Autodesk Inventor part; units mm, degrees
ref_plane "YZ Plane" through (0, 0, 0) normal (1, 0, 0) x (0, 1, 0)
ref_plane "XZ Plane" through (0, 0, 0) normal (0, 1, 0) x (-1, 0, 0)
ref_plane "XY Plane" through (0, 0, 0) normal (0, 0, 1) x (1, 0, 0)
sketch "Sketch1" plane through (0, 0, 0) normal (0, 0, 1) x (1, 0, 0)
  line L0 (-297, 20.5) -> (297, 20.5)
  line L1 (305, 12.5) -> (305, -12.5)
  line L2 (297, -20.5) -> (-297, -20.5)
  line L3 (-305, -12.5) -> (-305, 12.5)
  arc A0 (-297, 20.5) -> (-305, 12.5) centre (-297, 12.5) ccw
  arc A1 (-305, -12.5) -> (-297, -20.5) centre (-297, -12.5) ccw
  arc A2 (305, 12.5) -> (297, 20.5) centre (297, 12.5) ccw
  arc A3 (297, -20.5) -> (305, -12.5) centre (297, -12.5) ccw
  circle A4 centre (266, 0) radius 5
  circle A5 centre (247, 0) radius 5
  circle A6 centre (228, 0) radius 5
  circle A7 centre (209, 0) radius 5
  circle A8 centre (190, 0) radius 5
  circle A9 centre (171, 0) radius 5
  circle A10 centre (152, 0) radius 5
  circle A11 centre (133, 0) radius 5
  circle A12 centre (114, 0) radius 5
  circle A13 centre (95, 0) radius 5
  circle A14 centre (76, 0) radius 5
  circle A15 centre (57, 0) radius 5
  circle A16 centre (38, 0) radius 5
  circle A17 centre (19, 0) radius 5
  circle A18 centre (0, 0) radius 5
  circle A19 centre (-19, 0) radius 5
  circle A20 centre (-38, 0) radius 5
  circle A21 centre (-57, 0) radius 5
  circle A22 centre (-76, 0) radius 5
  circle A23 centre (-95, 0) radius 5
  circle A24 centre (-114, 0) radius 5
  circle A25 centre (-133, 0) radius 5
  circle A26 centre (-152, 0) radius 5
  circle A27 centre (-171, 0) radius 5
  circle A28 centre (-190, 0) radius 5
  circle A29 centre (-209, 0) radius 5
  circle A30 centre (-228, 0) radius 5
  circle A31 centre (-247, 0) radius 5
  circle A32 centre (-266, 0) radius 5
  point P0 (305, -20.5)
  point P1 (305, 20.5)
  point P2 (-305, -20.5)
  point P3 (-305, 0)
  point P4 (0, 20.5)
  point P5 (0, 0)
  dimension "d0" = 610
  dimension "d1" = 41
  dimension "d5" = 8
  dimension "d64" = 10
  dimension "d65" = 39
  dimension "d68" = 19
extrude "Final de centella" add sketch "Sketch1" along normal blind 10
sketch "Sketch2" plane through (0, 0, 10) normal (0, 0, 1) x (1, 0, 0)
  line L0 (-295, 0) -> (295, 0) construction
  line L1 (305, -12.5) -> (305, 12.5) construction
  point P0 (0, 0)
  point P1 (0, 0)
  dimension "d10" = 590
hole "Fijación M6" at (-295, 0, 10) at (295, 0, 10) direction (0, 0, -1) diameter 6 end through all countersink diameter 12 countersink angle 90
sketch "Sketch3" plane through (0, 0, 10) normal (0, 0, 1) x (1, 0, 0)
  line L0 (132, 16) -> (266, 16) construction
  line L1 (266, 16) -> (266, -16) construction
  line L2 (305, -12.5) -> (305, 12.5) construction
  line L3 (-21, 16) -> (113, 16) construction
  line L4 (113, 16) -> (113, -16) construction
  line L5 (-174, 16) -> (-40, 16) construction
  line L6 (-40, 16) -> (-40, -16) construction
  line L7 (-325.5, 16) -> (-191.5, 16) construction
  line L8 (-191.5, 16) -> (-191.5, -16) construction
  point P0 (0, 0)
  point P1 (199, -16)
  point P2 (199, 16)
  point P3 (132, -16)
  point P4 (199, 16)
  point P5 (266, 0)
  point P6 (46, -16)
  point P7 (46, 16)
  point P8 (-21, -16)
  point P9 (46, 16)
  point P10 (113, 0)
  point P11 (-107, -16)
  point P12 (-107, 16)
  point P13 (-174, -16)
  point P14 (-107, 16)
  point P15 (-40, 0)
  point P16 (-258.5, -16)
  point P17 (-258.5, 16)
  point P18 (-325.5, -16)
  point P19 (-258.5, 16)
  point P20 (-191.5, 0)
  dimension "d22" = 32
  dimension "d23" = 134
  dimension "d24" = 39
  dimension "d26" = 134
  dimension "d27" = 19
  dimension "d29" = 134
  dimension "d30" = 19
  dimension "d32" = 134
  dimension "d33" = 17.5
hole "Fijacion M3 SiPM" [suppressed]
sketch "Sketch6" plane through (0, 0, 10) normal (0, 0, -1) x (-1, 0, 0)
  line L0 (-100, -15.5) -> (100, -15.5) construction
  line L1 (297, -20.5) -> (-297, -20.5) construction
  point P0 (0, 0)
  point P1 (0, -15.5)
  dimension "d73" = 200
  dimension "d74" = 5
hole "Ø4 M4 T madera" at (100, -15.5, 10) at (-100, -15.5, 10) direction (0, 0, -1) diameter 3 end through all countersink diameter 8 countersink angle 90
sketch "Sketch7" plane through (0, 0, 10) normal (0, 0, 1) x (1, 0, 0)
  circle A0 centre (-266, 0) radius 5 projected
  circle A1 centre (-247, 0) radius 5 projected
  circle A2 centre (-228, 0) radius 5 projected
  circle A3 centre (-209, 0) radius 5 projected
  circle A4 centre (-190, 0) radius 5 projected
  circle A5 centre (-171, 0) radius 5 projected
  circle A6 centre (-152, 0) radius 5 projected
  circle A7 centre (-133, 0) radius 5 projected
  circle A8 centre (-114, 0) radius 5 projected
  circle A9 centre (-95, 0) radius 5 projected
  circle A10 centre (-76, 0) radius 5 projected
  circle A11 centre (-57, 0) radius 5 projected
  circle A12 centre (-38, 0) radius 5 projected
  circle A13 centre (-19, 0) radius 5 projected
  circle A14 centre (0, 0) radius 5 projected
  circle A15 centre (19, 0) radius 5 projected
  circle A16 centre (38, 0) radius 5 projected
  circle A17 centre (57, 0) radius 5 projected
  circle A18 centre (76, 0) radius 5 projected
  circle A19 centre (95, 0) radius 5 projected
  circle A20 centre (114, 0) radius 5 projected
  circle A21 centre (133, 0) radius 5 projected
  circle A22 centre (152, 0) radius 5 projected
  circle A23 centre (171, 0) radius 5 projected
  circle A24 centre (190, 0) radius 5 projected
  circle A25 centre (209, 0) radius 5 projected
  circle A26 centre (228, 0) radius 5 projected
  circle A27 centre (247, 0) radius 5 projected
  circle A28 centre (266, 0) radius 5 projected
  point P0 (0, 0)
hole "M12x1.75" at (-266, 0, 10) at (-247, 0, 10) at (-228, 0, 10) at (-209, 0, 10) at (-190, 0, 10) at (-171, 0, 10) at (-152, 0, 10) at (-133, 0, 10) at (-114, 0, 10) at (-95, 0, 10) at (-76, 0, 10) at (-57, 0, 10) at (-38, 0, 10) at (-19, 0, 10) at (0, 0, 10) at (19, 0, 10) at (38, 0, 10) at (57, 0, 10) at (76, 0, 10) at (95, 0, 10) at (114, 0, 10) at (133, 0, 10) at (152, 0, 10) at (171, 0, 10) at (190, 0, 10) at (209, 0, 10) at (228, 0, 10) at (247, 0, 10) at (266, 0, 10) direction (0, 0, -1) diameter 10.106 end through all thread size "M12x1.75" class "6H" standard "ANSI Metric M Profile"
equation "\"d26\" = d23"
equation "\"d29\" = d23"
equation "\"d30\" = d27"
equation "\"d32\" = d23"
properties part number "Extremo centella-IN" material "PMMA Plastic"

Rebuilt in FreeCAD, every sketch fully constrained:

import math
import FreeCAD as App
import Part
import Sketcher
Q = App.Units.Quantity

doc = App.newDocument("Part")
body = doc.addObject("PartDesign::Body", "Body")

sketch1 = doc.addObject("Sketcher::SketchObject", "Sketch")
body.addObject(sketch1)
sketch1.AttachmentSupport = (doc.XY_Plane, [""])
sketch1.MapMode = "FlatFace"
sketch1.addGeometry(Part.LineSegment(App.Vector(297, 20, 0), App.Vector(-297, 20, 0)), False)
sketch1.addGeometry(Part.ArcOfCircle(Part.Circle(App.Vector(-297, 12, 0), App.Vector(0, 0, 1), 8), math.radians(90), math.radians(180)), False)
sketch1.addGeometry(Part.LineSegment(App.Vector(-305, 12, 0), App.Vector(-305, -12, 0)), False)
sketch1.addGeometry(Part.ArcOfCircle(Part.Circle(App.Vector(-297, -12, 0), App.Vector(0, 0, 1), 8), math.radians(180), math.radians(270)), False)
sketch1.addGeometry(Part.LineSegment(App.Vector(-297, -20, 0), App.Vector(297, -20, 0)), False)
sketch1.addGeometry(Part.ArcOfCircle(Part.Circle(App.Vector(297, -12, 0), App.Vector(0, 0, 1), 8), math.radians(-90), math.radians(0)), False)
sketch1.addGeometry(Part.LineSegment(App.Vector(305, -12, 0), App.Vector(305, 12, 0)), False)
sketch1.addGeometry(Part.ArcOfCircle(Part.Circle(App.Vector(297, 12, 0), App.Vector(0, 0, 1), 8), math.radians(0), math.radians(90)), False)
sketch1.addGeometry(Part.Circle(App.Vector(-266, 0, 0), App.Vector(0, 0, 1), 5), False)
sketch1.addGeometry(Part.Circle(App.Vector(-247, 0, 0), App.Vector(0, 0, 1), 5), False)
sketch1.addGeometry(Part.Circle(App.Vector(-228, 0, 0), App.Vector(0, 0, 1), 5), False)
sketch1.addGeometry(Part.Circle(App.Vector(-209, 0, 0), App.Vector(0, 0, 1), 5), False)
sketch1.addGeometry(Part.Circle(App.Vector(-190, 0, 0), App.Vector(0, 0, 1), 5), False)
sketch1.addGeometry(Part.Circle(App.Vector(-171, 0, 0), App.Vector(0, 0, 1), 5), False)
sketch1.addGeometry(Part.Circle(App.Vector(-152, 0, 0), App.Vector(0, 0, 1), 5), False)
sketch1.addGeometry(Part.Circle(App.Vector(-133, 0, 0), App.Vector(0, 0, 1), 5), False)
sketch1.addGeometry(Part.Circle(App.Vector(-114, 0, 0), App.Vector(0, 0, 1), 5), False)
sketch1.addGeometry(Part.Circle(App.Vector(-95, 0, 0), App.Vector(0, 0, 1), 5), False)
sketch1.addGeometry(Part.Circle(App.Vector(-76, 0, 0), App.Vector(0, 0, 1), 5), False)
sketch1.addGeometry(Part.Circle(App.Vector(-57, 0, 0), App.Vector(0, 0, 1), 5), False)
sketch1.addGeometry(Part.Circle(App.Vector(-38, 0, 0), App.Vector(0, 0, 1), 5), False)
sketch1.addGeometry(Part.Circle(App.Vector(-19, 0, 0), App.Vector(0, 0, 1), 5), False)
sketch1.addGeometry(Part.Circle(App.Vector(0, 0, 0), App.Vector(0, 0, 1), 5), False)
sketch1.addGeometry(Part.Circle(App.Vector(19, 0, 0), App.Vector(0, 0, 1), 5), False)
sketch1.addGeometry(Part.Circle(App.Vector(38, 0, 0), App.Vector(0, 0, 1), 5), False)
sketch1.addGeometry(Part.Circle(App.Vector(57, 0, 0), App.Vector(0, 0, 1), 5), False)
sketch1.addGeometry(Part.Circle(App.Vector(76, 0, 0), App.Vector(0, 0, 1), 5), False)
sketch1.addGeometry(Part.Circle(App.Vector(95, 0, 0), App.Vector(0, 0, 1), 5), False)
sketch1.addGeometry(Part.Circle(App.Vector(114, 0, 0), App.Vector(0, 0, 1), 5), False)
sketch1.addGeometry(Part.Circle(App.Vector(133, 0, 0), App.Vector(0, 0, 1), 5), False)
sketch1.addGeometry(Part.Circle(App.Vector(152, 0, 0), App.Vector(0, 0, 1), 5), False)
sketch1.addGeometry(Part.Circle(App.Vector(171, 0, 0), App.Vector(0, 0, 1), 5), False)
sketch1.addGeometry(Part.Circle(App.Vector(190, 0, 0), App.Vector(0, 0, 1), 5), False)
sketch1.addGeometry(Part.Circle(App.Vector(209, 0, 0), App.Vector(0, 0, 1), 5), False)
sketch1.addGeometry(Part.Circle(App.Vector(228, 0, 0), App.Vector(0, 0, 1), 5), False)
sketch1.addGeometry(Part.Circle(App.Vector(247, 0, 0), App.Vector(0, 0, 1), 5), False)
sketch1.addGeometry(Part.Circle(App.Vector(266, 0, 0), App.Vector(0, 0, 1), 5), False)
sketch1.addConstraint(Sketcher.Constraint("Tangent", 0, 2, 1, 1))
sketch1.addConstraint(Sketcher.Constraint("Tangent", 1, 2, 2, 1))
sketch1.addConstraint(Sketcher.Constraint("Tangent", 2, 2, 3, 1))
sketch1.addConstraint(Sketcher.Constraint("Tangent", 3, 2, 4, 1))
sketch1.addConstraint(Sketcher.Constraint("Tangent", 4, 2, 5, 1))
sketch1.addConstraint(Sketcher.Constraint("Tangent", 5, 2, 6, 1))
sketch1.addConstraint(Sketcher.Constraint("Tangent", 6, 2, 7, 1))
sketch1.addConstraint(Sketcher.Constraint("Tangent", 7, 2, 0, 1))
sketch1.addConstraint(Sketcher.Constraint("Horizontal", 0))
sketch1.addConstraint(Sketcher.Constraint("Vertical", 2))
sketch1.addConstraint(Sketcher.Constraint("Horizontal", 4))
sketch1.addConstraint(Sketcher.Constraint("Vertical", 6))
sketch1.addConstraint(Sketcher.Constraint("Coincident", 22, 3, -1, 1))
sketch1.addConstraint(Sketcher.Constraint("Equal", 1, 3))
sketch1.addConstraint(Sketcher.Constraint("Equal", 3, 5))
sketch1.addConstraint(Sketcher.Constraint("Equal", 5, 7))
sketch1.addConstraint(Sketcher.Constraint("Equal", 8, 9))
sketch1.addConstraint(Sketcher.Constraint("Equal", 9, 10))
sketch1.addConstraint(Sketcher.Constraint("Equal", 10, 11))
sketch1.addConstraint(Sketcher.Constraint("Equal", 11, 12))
sketch1.addConstraint(Sketcher.Constraint("Equal", 12, 13))
sketch1.addConstraint(Sketcher.Constraint("Equal", 13, 14))
sketch1.addConstraint(Sketcher.Constraint("Equal", 14, 15))
sketch1.addConstraint(Sketcher.Constraint("Equal", 15, 16))
sketch1.addConstraint(Sketcher.Constraint("Equal", 16, 17))
sketch1.addConstraint(Sketcher.Constraint("Equal", 17, 18))
sketch1.addConstraint(Sketcher.Constraint("Equal", 18, 19))
sketch1.addConstraint(Sketcher.Constraint("Equal", 19, 20))
sketch1.addConstraint(Sketcher.Constraint("Equal", 20, 21))
sketch1.addConstraint(Sketcher.Constraint("Equal", 21, 22))
sketch1.addConstraint(Sketcher.Constraint("Equal", 22, 23))
sketch1.addConstraint(Sketcher.Constraint("Equal", 23, 24))
sketch1.addConstraint(Sketcher.Constraint("Equal", 24, 25))
sketch1.addConstraint(Sketcher.Constraint("Equal", 25, 26))
sketch1.addConstraint(Sketcher.Constraint("Equal", 26, 27))
sketch1.addConstraint(Sketcher.Constraint("Equal", 27, 28))
sketch1.addConstraint(Sketcher.Constraint("Equal", 28, 29))
sketch1.addConstraint(Sketcher.Constraint("Equal", 29, 30))
sketch1.addConstraint(Sketcher.Constraint("Equal", 30, 31))
sketch1.addConstraint(Sketcher.Constraint("Equal", 31, 32))
sketch1.addConstraint(Sketcher.Constraint("Equal", 32, 33))
sketch1.addConstraint(Sketcher.Constraint("Equal", 33, 34))
sketch1.addConstraint(Sketcher.Constraint("Equal", 34, 35))
sketch1.addConstraint(Sketcher.Constraint("Equal", 35, 36))
sketch1.addConstraint(Sketcher.Constraint("Symmetric", 1, 3, 5, 3, -1, 1))
sketch1.addConstraint(Sketcher.Constraint("Symmetric", 21, 3, 23, 3, -1, 1))
sketch1.addConstraint(Sketcher.Constraint("Symmetric", 20, 3, 24, 3, -1, 1))
sketch1.addConstraint(Sketcher.Constraint("Symmetric", 19, 3, 25, 3, -1, 1))
sketch1.addConstraint(Sketcher.Constraint("Symmetric", 18, 3, 26, 3, -1, 1))
sketch1.addConstraint(Sketcher.Constraint("Symmetric", 17, 3, 27, 3, -1, 1))
sketch1.addConstraint(Sketcher.Constraint("Symmetric", 16, 3, 28, 3, -1, 1))
sketch1.addConstraint(Sketcher.Constraint("Symmetric", 15, 3, 29, 3, -1, 1))
sketch1.addConstraint(Sketcher.Constraint("Symmetric", 14, 3, 30, 3, -1, 1))
sketch1.addConstraint(Sketcher.Constraint("Symmetric", 13, 3, 31, 3, -1, 1))
sketch1.addConstraint(Sketcher.Constraint("Symmetric", 12, 3, 32, 3, -1, 1))
sketch1.addConstraint(Sketcher.Constraint("Symmetric", 11, 3, 33, 3, -1, 1))
sketch1.addConstraint(Sketcher.Constraint("Symmetric", 10, 3, 34, 3, -1, 1))
sketch1.addConstraint(Sketcher.Constraint("Symmetric", 9, 3, 35, 3, -1, 1))
sketch1.addConstraint(Sketcher.Constraint("Symmetric", 8, 3, 36, 3, -1, 1))
sketch1.addConstraint(Sketcher.Constraint("PointOnObject", 8, 3, -1))
sketch1.addConstraint(Sketcher.Constraint("PointOnObject", 9, 3, -1))
sketch1.addConstraint(Sketcher.Constraint("PointOnObject", 10, 3, -1))
sketch1.addConstraint(Sketcher.Constraint("PointOnObject", 11, 3, -1))
sketch1.addConstraint(Sketcher.Constraint("PointOnObject", 12, 3, -1))
sketch1.addConstraint(Sketcher.Constraint("PointOnObject", 13, 3, -1))
sketch1.addConstraint(Sketcher.Constraint("PointOnObject", 14, 3, -1))
sketch1.addConstraint(Sketcher.Constraint("PointOnObject", 15, 3, -1))
sketch1.addConstraint(Sketcher.Constraint("PointOnObject", 16, 3, -1))
sketch1.addConstraint(Sketcher.Constraint("PointOnObject", 17, 3, -1))
sketch1.addConstraint(Sketcher.Constraint("PointOnObject", 18, 3, -1))
sketch1.addConstraint(Sketcher.Constraint("PointOnObject", 19, 3, -1))
sketch1.addConstraint(Sketcher.Constraint("PointOnObject", 20, 3, -1))
sketch1.addConstraint(Sketcher.Constraint("PointOnObject", 21, 3, -1))
sketch1.addConstraint(Sketcher.Constraint("Diameter", 8, Q("10 mm")))
sketch1.addConstraint(Sketcher.Constraint("Radius", 1, Q("8 mm")))
sketch1.addConstraint(Sketcher.Constraint("DistanceX", 21, 3, -1, 1, Q("19 mm")))
sketch1.addConstraint(Sketcher.Constraint("DistanceX", 8, 3, 9, 3, Q("19 mm")))
sketch1.addConstraint(Sketcher.Constraint("DistanceX", 9, 3, 10, 3, Q("19 mm")))
sketch1.addConstraint(Sketcher.Constraint("DistanceX", 10, 3, 11, 3, Q("19 mm")))
sketch1.addConstraint(Sketcher.Constraint("DistanceX", 11, 3, 12, 3, Q("19 mm")))
sketch1.addConstraint(Sketcher.Constraint("DistanceX", 12, 3, 13, 3, Q("19 mm")))
sketch1.addConstraint(Sketcher.Constraint("DistanceX", 13, 3, 14, 3, Q("19 mm")))
sketch1.addConstraint(Sketcher.Constraint("DistanceX", 14, 3, 15, 3, Q("19 mm")))
sketch1.addConstraint(Sketcher.Constraint("DistanceX", 15, 3, 16, 3, Q("19 mm")))
sketch1.addConstraint(Sketcher.Constraint("DistanceX", 16, 3, 17, 3, Q("19 mm")))
sketch1.addConstraint(Sketcher.Constraint("DistanceX", 17, 3, 18, 3, Q("19 mm")))
sketch1.addConstraint(Sketcher.Constraint("DistanceX", 18, 3, 19, 3, Q("19 mm")))
sketch1.addConstraint(Sketcher.Constraint("DistanceX", 19, 3, 20, 3, Q("19 mm")))
sketch1.addConstraint(Sketcher.Constraint("DistanceX", 20, 3, 21, 3, Q("19 mm")))
sketch1.addConstraint(Sketcher.Constraint("DistanceX", 1, 2, 8, 3, Q("39 mm")))
sketch1.addConstraint(Sketcher.Constraint("DistanceY", 2, 2, 2, 1, Q("25 mm")))
pad1 = doc.addObject("PartDesign::Pad", "Pad")
body.addObject(pad1)
pad1.Profile = sketch1
pad1.Length = 10

sketch2 = doc.addObject("Sketcher::SketchObject", "Sketch001")
body.addObject(sketch2)
sketch2.AttachmentSupport = (doc.XY_Plane, [""])
sketch2.MapMode = "FlatFace"
sketch2.AttachmentOffset = App.Placement(App.Vector(0, 0, 10), App.Rotation())
sketch2.addGeometry(Part.Circle(App.Vector(-295, 0, 0), App.Vector(0, 0, 1), 3), False)
sketch2.addGeometry(Part.Circle(App.Vector(295, 0, 0), App.Vector(0, 0, 1), 3), False)
sketch2.addConstraint(Sketcher.Constraint("Equal", 0, 1))
sketch2.addConstraint(Sketcher.Constraint("Symmetric", 0, 3, 1, 3, -1, 1))
sketch2.addConstraint(Sketcher.Constraint("PointOnObject", 0, 3, -1))
sketch2.addConstraint(Sketcher.Constraint("Diameter", 0, Q("6 mm")))
sketch2.addConstraint(Sketcher.Constraint("DistanceX", 0, 3, -1, 1, Q("295 mm")))
doc.recompute()
hole = doc.addObject("PartDesign::Hole", "Hole")
body.addObject(hole)
hole.Profile = sketch2
hole.ThreadType = "None"
hole.Diameter = 6
hole.DepthType = "ThroughAll"
hole.HoleCutType = "Countersink"
hole.HoleCutDiameter = 12
hole.HoleCutCountersinkAngle = 90

sketch3 = doc.addObject("Sketcher::SketchObject", "Sketch002")
body.addObject(sketch3)
sketch3.AttachmentSupport = (doc.XY_Plane, [""])
sketch3.MapMode = "FlatFace"
sketch3.AttachmentOffset = App.Placement(App.Vector(0, 0, 10), App.Rotation())
sketch3.addGeometry(Part.Circle(App.Vector(100, -15.5, 0), App.Vector(0, 0, 1), 1.5), False)
sketch3.addGeometry(Part.Circle(App.Vector(-100, -15.5, 0), App.Vector(0, 0, 1), 1.5), False)
sketch3.addConstraint(Sketcher.Constraint("Equal", 0, 1))
sketch3.addConstraint(Sketcher.Constraint("Symmetric", 0, 3, 1, 3, -2))
sketch3.addConstraint(Sketcher.Constraint("Diameter", 0, Q("3 mm")))
sketch3.addConstraint(Sketcher.Constraint("DistanceX", -1, 1, 0, 3, Q("100 mm")))
sketch3.addConstraint(Sketcher.Constraint("DistanceY", 0, 3, -1, 1, Q("15.5 mm")))
doc.recompute()
hole2 = doc.addObject("PartDesign::Hole", "Hole001")
body.addObject(hole2)
hole2.Profile = sketch3
hole2.ThreadType = "None"
hole2.Diameter = 3
hole2.DepthType = "ThroughAll"
hole2.HoleCutType = "Countersink"
hole2.HoleCutDiameter = 8
hole2.HoleCutCountersinkAngle = 90

sketch4 = doc.addObject("Sketcher::SketchObject", "Sketch003")
body.addObject(sketch4)
sketch4.AttachmentSupport = (doc.XY_Plane, [""])
sketch4.MapMode = "FlatFace"
sketch4.AttachmentOffset = App.Placement(App.Vector(0, 0, 10), App.Rotation())
sketch4.addGeometry(Part.Circle(App.Vector(-266, 0, 0), App.Vector(0, 0, 1), 5), False)
sketch4.addGeometry(Part.Circle(App.Vector(-247, 0, 0), App.Vector(0, 0, 1), 5), False)
sketch4.addGeometry(Part.Circle(App.Vector(-228, 0, 0), App.Vector(0, 0, 1), 5), False)
sketch4.addGeometry(Part.Circle(App.Vector(-209, 0, 0), App.Vector(0, 0, 1), 5), False)
sketch4.addGeometry(Part.Circle(App.Vector(-190, 0, 0), App.Vector(0, 0, 1), 5), False)
sketch4.addGeometry(Part.Circle(App.Vector(-171, 0, 0), App.Vector(0, 0, 1), 5), False)
sketch4.addGeometry(Part.Circle(App.Vector(-152, 0, 0), App.Vector(0, 0, 1), 5), False)
sketch4.addGeometry(Part.Circle(App.Vector(-133, 0, 0), App.Vector(0, 0, 1), 5), False)
sketch4.addGeometry(Part.Circle(App.Vector(-114, 0, 0), App.Vector(0, 0, 1), 5), False)
sketch4.addGeometry(Part.Circle(App.Vector(-95, 0, 0), App.Vector(0, 0, 1), 5), False)
sketch4.addGeometry(Part.Circle(App.Vector(-76, 0, 0), App.Vector(0, 0, 1), 5), False)
sketch4.addGeometry(Part.Circle(App.Vector(-57, 0, 0), App.Vector(0, 0, 1), 5), False)
sketch4.addGeometry(Part.Circle(App.Vector(-38, 0, 0), App.Vector(0, 0, 1), 5), False)
sketch4.addGeometry(Part.Circle(App.Vector(-19, 0, 0), App.Vector(0, 0, 1), 5), False)
sketch4.addGeometry(Part.Circle(App.Vector(0, 0, 0), App.Vector(0, 0, 1), 5), False)
sketch4.addGeometry(Part.Circle(App.Vector(19, 0, 0), App.Vector(0, 0, 1), 5), False)
sketch4.addGeometry(Part.Circle(App.Vector(38, 0, 0), App.Vector(0, 0, 1), 5), False)
sketch4.addGeometry(Part.Circle(App.Vector(57, 0, 0), App.Vector(0, 0, 1), 5), False)
sketch4.addGeometry(Part.Circle(App.Vector(76, 0, 0), App.Vector(0, 0, 1), 5), False)
sketch4.addGeometry(Part.Circle(App.Vector(95, 0, 0), App.Vector(0, 0, 1), 5), False)
sketch4.addGeometry(Part.Circle(App.Vector(114, 0, 0), App.Vector(0, 0, 1), 5), False)
sketch4.addGeometry(Part.Circle(App.Vector(133, 0, 0), App.Vector(0, 0, 1), 5), False)
sketch4.addGeometry(Part.Circle(App.Vector(152, 0, 0), App.Vector(0, 0, 1), 5), False)
sketch4.addGeometry(Part.Circle(App.Vector(171, 0, 0), App.Vector(0, 0, 1), 5), False)
sketch4.addGeometry(Part.Circle(App.Vector(190, 0, 0), App.Vector(0, 0, 1), 5), False)
sketch4.addGeometry(Part.Circle(App.Vector(209, 0, 0), App.Vector(0, 0, 1), 5), False)
sketch4.addGeometry(Part.Circle(App.Vector(228, 0, 0), App.Vector(0, 0, 1), 5), False)
sketch4.addGeometry(Part.Circle(App.Vector(247, 0, 0), App.Vector(0, 0, 1), 5), False)
sketch4.addGeometry(Part.Circle(App.Vector(266, 0, 0), App.Vector(0, 0, 1), 5), False)
sketch4.addConstraint(Sketcher.Constraint("Coincident", 14, 3, -1, 1))
sketch4.addConstraint(Sketcher.Constraint("Equal", 0, 1))
sketch4.addConstraint(Sketcher.Constraint("Equal", 1, 2))
sketch4.addConstraint(Sketcher.Constraint("Equal", 2, 3))
sketch4.addConstraint(Sketcher.Constraint("Equal", 3, 4))
sketch4.addConstraint(Sketcher.Constraint("Equal", 4, 5))
sketch4.addConstraint(Sketcher.Constraint("Equal", 5, 6))
sketch4.addConstraint(Sketcher.Constraint("Equal", 6, 7))
sketch4.addConstraint(Sketcher.Constraint("Equal", 7, 8))
sketch4.addConstraint(Sketcher.Constraint("Equal", 8, 9))
sketch4.addConstraint(Sketcher.Constraint("Equal", 9, 10))
sketch4.addConstraint(Sketcher.Constraint("Equal", 10, 11))
sketch4.addConstraint(Sketcher.Constraint("Equal", 11, 12))
sketch4.addConstraint(Sketcher.Constraint("Equal", 12, 13))
sketch4.addConstraint(Sketcher.Constraint("Equal", 13, 14))
sketch4.addConstraint(Sketcher.Constraint("Equal", 14, 15))
sketch4.addConstraint(Sketcher.Constraint("Equal", 15, 16))
sketch4.addConstraint(Sketcher.Constraint("Equal", 16, 17))
sketch4.addConstraint(Sketcher.Constraint("Equal", 17, 18))
sketch4.addConstraint(Sketcher.Constraint("Equal", 18, 19))
sketch4.addConstraint(Sketcher.Constraint("Equal", 19, 20))
sketch4.addConstraint(Sketcher.Constraint("Equal", 20, 21))
sketch4.addConstraint(Sketcher.Constraint("Equal", 21, 22))
sketch4.addConstraint(Sketcher.Constraint("Equal", 22, 23))
sketch4.addConstraint(Sketcher.Constraint("Equal", 23, 24))
sketch4.addConstraint(Sketcher.Constraint("Equal", 24, 25))
sketch4.addConstraint(Sketcher.Constraint("Equal", 25, 26))
sketch4.addConstraint(Sketcher.Constraint("Equal", 26, 27))
sketch4.addConstraint(Sketcher.Constraint("Equal", 27, 28))
sketch4.addConstraint(Sketcher.Constraint("Symmetric", 13, 3, 15, 3, -1, 1))
sketch4.addConstraint(Sketcher.Constraint("Symmetric", 12, 3, 16, 3, -1, 1))
sketch4.addConstraint(Sketcher.Constraint("Symmetric", 11, 3, 17, 3, -1, 1))
sketch4.addConstraint(Sketcher.Constraint("Symmetric", 10, 3, 18, 3, -1, 1))
sketch4.addConstraint(Sketcher.Constraint("Symmetric", 9, 3, 19, 3, -1, 1))
sketch4.addConstraint(Sketcher.Constraint("Symmetric", 8, 3, 20, 3, -1, 1))
sketch4.addConstraint(Sketcher.Constraint("Symmetric", 7, 3, 21, 3, -1, 1))
sketch4.addConstraint(Sketcher.Constraint("Symmetric", 6, 3, 22, 3, -1, 1))
sketch4.addConstraint(Sketcher.Constraint("Symmetric", 5, 3, 23, 3, -1, 1))
sketch4.addConstraint(Sketcher.Constraint("Symmetric", 4, 3, 24, 3, -1, 1))
sketch4.addConstraint(Sketcher.Constraint("Symmetric", 3, 3, 25, 3, -1, 1))
sketch4.addConstraint(Sketcher.Constraint("Symmetric", 2, 3, 26, 3, -1, 1))
sketch4.addConstraint(Sketcher.Constraint("Symmetric", 1, 3, 27, 3, -1, 1))
sketch4.addConstraint(Sketcher.Constraint("Symmetric", 0, 3, 28, 3, -1, 1))
sketch4.addConstraint(Sketcher.Constraint("PointOnObject", 0, 3, -1))
sketch4.addConstraint(Sketcher.Constraint("PointOnObject", 1, 3, -1))
sketch4.addConstraint(Sketcher.Constraint("PointOnObject", 2, 3, -1))
sketch4.addConstraint(Sketcher.Constraint("PointOnObject", 3, 3, -1))
sketch4.addConstraint(Sketcher.Constraint("PointOnObject", 4, 3, -1))
sketch4.addConstraint(Sketcher.Constraint("PointOnObject", 5, 3, -1))
sketch4.addConstraint(Sketcher.Constraint("PointOnObject", 6, 3, -1))
sketch4.addConstraint(Sketcher.Constraint("PointOnObject", 7, 3, -1))
sketch4.addConstraint(Sketcher.Constraint("PointOnObject", 8, 3, -1))
sketch4.addConstraint(Sketcher.Constraint("PointOnObject", 9, 3, -1))
sketch4.addConstraint(Sketcher.Constraint("PointOnObject", 10, 3, -1))
sketch4.addConstraint(Sketcher.Constraint("PointOnObject", 11, 3, -1))
sketch4.addConstraint(Sketcher.Constraint("PointOnObject", 12, 3, -1))
sketch4.addConstraint(Sketcher.Constraint("PointOnObject", 13, 3, -1))
sketch4.addConstraint(Sketcher.Constraint("Diameter", 0, Q("10.106 mm")))
sketch4.addConstraint(Sketcher.Constraint("DistanceX", 0, 3, -1, 1, Q("266 mm")))
sketch4.addConstraint(Sketcher.Constraint("DistanceX", 1, 3, -1, 1, Q("247 mm")))
sketch4.addConstraint(Sketcher.Constraint("DistanceX", 2, 3, -1, 1, Q("228 mm")))
sketch4.addConstraint(Sketcher.Constraint("DistanceX", 3, 3, -1, 1, Q("209 mm")))
sketch4.addConstraint(Sketcher.Constraint("DistanceX", 4, 3, -1, 1, Q("190 mm")))
sketch4.addConstraint(Sketcher.Constraint("DistanceX", 5, 3, -1, 1, Q("171 mm")))
sketch4.addConstraint(Sketcher.Constraint("DistanceX", 6, 3, -1, 1, Q("152 mm")))
sketch4.addConstraint(Sketcher.Constraint("DistanceX", 7, 3, -1, 1, Q("133 mm")))
sketch4.addConstraint(Sketcher.Constraint("DistanceX", 8, 3, -1, 1, Q("114 mm")))
sketch4.addConstraint(Sketcher.Constraint("DistanceX", 9, 3, -1, 1, Q("95 mm")))
sketch4.addConstraint(Sketcher.Constraint("DistanceX", 10, 3, -1, 1, Q("76 mm")))
sketch4.addConstraint(Sketcher.Constraint("DistanceX", 11, 3, -1, 1, Q("57 mm")))
sketch4.addConstraint(Sketcher.Constraint("DistanceX", 12, 3, -1, 1, Q("38 mm")))
sketch4.addConstraint(Sketcher.Constraint("DistanceX", 13, 3, -1, 1, Q("19 mm")))
doc.recompute()
hole3 = doc.addObject("PartDesign::Hole", "Hole002")
body.addObject(hole3)
hole3.Profile = sketch4
hole3.ThreadType = "None"
hole3.Diameter = 10.106
hole3.DepthType = "ThroughAll"

doc.recompute()
